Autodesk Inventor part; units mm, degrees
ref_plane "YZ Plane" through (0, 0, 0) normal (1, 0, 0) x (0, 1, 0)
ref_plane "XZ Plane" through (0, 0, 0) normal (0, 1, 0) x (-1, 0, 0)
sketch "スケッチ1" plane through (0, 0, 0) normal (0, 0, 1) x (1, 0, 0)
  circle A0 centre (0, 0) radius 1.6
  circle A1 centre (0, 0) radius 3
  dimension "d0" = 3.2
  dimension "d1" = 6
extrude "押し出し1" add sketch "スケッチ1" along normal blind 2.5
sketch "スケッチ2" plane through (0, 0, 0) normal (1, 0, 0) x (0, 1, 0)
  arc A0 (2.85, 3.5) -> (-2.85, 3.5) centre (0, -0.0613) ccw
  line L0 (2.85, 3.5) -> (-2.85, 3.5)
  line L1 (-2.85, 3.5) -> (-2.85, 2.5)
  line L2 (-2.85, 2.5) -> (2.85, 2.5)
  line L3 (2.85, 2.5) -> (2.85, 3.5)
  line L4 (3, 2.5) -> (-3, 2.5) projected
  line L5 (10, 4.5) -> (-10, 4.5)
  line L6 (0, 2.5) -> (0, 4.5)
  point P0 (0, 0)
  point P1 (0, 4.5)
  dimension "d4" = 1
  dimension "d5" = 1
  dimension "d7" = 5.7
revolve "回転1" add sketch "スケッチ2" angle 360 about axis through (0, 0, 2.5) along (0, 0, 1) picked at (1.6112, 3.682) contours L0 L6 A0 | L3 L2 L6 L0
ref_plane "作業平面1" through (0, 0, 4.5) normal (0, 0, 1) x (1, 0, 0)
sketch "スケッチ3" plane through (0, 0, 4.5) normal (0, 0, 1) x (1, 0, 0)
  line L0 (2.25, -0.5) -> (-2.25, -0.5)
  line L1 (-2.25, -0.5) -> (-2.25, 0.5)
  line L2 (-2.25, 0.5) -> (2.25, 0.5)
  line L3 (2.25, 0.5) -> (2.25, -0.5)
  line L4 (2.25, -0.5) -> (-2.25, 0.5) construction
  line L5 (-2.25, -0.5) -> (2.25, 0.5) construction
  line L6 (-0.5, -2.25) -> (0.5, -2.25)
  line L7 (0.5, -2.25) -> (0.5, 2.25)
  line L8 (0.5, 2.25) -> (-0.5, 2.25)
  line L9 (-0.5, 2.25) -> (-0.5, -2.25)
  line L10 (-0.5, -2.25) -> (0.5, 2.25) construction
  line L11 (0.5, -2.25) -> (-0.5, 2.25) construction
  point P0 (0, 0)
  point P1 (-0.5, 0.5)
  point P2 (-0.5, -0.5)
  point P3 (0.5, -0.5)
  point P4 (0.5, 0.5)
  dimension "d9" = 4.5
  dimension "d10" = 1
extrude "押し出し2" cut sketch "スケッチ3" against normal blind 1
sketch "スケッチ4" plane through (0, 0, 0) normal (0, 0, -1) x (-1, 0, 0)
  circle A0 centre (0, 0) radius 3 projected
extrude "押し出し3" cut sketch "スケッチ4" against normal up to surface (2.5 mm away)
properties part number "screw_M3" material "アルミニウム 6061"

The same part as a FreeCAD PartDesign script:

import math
import FreeCAD as App
import Part
import Sketcher

V = App.Vector
Q = App.Units.Quantity


def add_polygon(sketch, points):
    """Adds a closed chain of lines whose ends are joined by coincident constraints."""
    first, n = sketch.GeometryCount, len(points)
    for a, b in zip(points, points[1:] + points[:1]):
        sketch.addGeometry(Part.LineSegment(App.Vector(*a, 0), App.Vector(*b, 0)), False)
    for i in range(n):
        sketch.addConstraint(Sketcher.Constraint("Coincident", first + i, 2, first + (i + 1) % n, 1))

doc = App.newDocument("Part")
body = doc.addObject("PartDesign::Body", "Body")

sketch1 = body.newObject("Sketcher::SketchObject", "Sketch")
sketch1.AttachmentSupport = (doc.getObject("XY_Plane"), [""])
sketch1.MapMode = "FlatFace"
sketch1.addGeometry([
    Part.Circle(V(0, 0, 0), V(0, 0, 1), 3),
    Part.Circle(V(0, 0, 0), V(0, 0, 1), 1.6),
], False)
sketch1.addConstraint([
    Sketcher.Constraint("Coincident", 0, 3, -1, 1),
    Sketcher.Constraint("Coincident", 1, 3, -1, 1),
    Sketcher.Constraint("Diameter", 0, Q("6 mm")),
    Sketcher.Constraint("Diameter", 1, Q("3.2 mm")),
])
pad1 = body.newObject("PartDesign::Pad", "Pad")
pad1.Profile = sketch1
pad1.Length = 2.5

sketch2 = body.newObject("Sketcher::SketchObject", "Sketch001")
sketch2.AttachmentSupport = (doc.getObject("YZ_Plane"), [""])
sketch2.MapMode = "FlatFace"
sketch2.addGeometry([
    Part.LineSegment(V(0, 4.5, 0), V(0, 2.5, 0)),
    Part.LineSegment(V(0, 2.5, 0), V(2.9, 2.5, 0)),
    Part.LineSegment(V(2.9, 2.5, 0), V(2.9, 3.5, 0)),
    Part.ArcOfCircle(Part.Circle(V(0, -0.1, 0), V(0, 0, 1), 4.6), math.radians(51), math.radians(90)),
], False)
sketch2.addConstraint([
    Sketcher.Constraint("Coincident", 0, 2, 1, 1),
    Sketcher.Constraint("Coincident", 1, 2, 2, 1),
    Sketcher.Constraint("Coincident", 2, 2, 3, 1),
    Sketcher.Constraint("Coincident", 3, 2, 0, 1),
    Sketcher.Constraint("Vertical", 0),
    Sketcher.Constraint("Horizontal", 1),
    Sketcher.Constraint("Vertical", 2),
    Sketcher.Constraint("PointOnObject", 3, 3, -2),
    Sketcher.Constraint("PointOnObject", 0, 2, -2),
    Sketcher.Constraint("DistanceY", 2, 1, 2, 2, Q("1 mm")),
    Sketcher.Constraint("DistanceY", 2, 2, 3, 2, Q("1 mm")),
    Sketcher.Constraint("DistanceX", 1, 1, 1, 2, Q("2.85 mm")),
    Sketcher.Constraint("DistanceY", -1, 1, 0, 2, Q("2.5 mm")),
])
revolution = body.newObject("PartDesign::Revolution", "Revolution")
revolution.Profile = sketch2
revolution.ReferenceAxis = (sketch2, ["V_Axis"])
revolution.Angle = 360

sketch3 = body.newObject("Sketcher::SketchObject", "Sketch002")
sketch3.AttachmentSupport = (doc.getObject("XY_Plane"), [""])
sketch3.MapMode = "FlatFace"
sketch3.AttachmentOffset = App.Placement(V(0, 0, 4.5), App.Rotation())
add_polygon(sketch3, [(0.5, -0.5), (2.2, -0.5), (2.2, 0.5), (0.5, 0.5), (0.5, 2.2), (-0.5, 2.2), (-0.5, 0.5), (-2.2, 0.5), (-2.2, -0.5), (-0.5, -0.5), (-0.5, -2.2), (0.5, -2.2)])
sketch3.addConstraint([
    Sketcher.Constraint("Horizontal", 0),
    Sketcher.Constraint("Vertical", 1),
    Sketcher.Constraint("Horizontal", 2),
    Sketcher.Constraint("Vertical", 3),
    Sketcher.Constraint("Horizontal", 4),
    Sketcher.Constraint("Vertical", 5),
    Sketcher.Constraint("Horizontal", 6),
    Sketcher.Constraint("Vertical", 7),
    Sketcher.Constraint("Horizontal", 8),
    Sketcher.Constraint("Vertical", 9),
    Sketcher.Constraint("Horizontal", 10),
    Sketcher.Constraint("Vertical", 11),
    Sketcher.Constraint("Symmetric", 0, 2, 6, 2, -1, 1),
    Sketcher.Constraint("Symmetric", 2, 2, 8, 2, -1, 1),
    Sketcher.Constraint("Symmetric", 4, 2, 10, 2, -1, 1),
    Sketcher.Constraint("Symmetric", 2, 2, 5, 2, -2),
    Sketcher.Constraint("Equal", 10, 1),
    Sketcher.Constraint("Equal", 8, 3),
    Sketcher.Constraint("DistanceX", 4, 2, 4, 1, Q("1 mm")),
    Sketcher.Constraint("DistanceX", 6, 2, 1, 2, Q("4.5 mm")),
])
pocket1 = body.newObject("PartDesign::Pocket", "Pocket")
pocket1.Profile = sketch3
pocket1.Length = 1

sketch4 = body.newObject("Sketcher::SketchObject", "Sketch003")
sketch4.AttachmentSupport = (doc.getObject("XY_Plane"), [""])
sketch4.MapMode = "FlatFace"
sketch4.addGeometry(Part.Circle(V(0, 0, 0), V(0, 0, 1), 3), False)
sketch4.addConstraint([
    Sketcher.Constraint("Coincident", 0, 3, -1, 1),
    Sketcher.Constraint("Diameter", 0, Q("6 mm")),
])
pocket2 = body.newObject("PartDesign::Pocket", "Pocket001")
pocket2.Profile = sketch4
pocket2.Length = 2.5
pocket2.Reversed = True

doc.recompute()
